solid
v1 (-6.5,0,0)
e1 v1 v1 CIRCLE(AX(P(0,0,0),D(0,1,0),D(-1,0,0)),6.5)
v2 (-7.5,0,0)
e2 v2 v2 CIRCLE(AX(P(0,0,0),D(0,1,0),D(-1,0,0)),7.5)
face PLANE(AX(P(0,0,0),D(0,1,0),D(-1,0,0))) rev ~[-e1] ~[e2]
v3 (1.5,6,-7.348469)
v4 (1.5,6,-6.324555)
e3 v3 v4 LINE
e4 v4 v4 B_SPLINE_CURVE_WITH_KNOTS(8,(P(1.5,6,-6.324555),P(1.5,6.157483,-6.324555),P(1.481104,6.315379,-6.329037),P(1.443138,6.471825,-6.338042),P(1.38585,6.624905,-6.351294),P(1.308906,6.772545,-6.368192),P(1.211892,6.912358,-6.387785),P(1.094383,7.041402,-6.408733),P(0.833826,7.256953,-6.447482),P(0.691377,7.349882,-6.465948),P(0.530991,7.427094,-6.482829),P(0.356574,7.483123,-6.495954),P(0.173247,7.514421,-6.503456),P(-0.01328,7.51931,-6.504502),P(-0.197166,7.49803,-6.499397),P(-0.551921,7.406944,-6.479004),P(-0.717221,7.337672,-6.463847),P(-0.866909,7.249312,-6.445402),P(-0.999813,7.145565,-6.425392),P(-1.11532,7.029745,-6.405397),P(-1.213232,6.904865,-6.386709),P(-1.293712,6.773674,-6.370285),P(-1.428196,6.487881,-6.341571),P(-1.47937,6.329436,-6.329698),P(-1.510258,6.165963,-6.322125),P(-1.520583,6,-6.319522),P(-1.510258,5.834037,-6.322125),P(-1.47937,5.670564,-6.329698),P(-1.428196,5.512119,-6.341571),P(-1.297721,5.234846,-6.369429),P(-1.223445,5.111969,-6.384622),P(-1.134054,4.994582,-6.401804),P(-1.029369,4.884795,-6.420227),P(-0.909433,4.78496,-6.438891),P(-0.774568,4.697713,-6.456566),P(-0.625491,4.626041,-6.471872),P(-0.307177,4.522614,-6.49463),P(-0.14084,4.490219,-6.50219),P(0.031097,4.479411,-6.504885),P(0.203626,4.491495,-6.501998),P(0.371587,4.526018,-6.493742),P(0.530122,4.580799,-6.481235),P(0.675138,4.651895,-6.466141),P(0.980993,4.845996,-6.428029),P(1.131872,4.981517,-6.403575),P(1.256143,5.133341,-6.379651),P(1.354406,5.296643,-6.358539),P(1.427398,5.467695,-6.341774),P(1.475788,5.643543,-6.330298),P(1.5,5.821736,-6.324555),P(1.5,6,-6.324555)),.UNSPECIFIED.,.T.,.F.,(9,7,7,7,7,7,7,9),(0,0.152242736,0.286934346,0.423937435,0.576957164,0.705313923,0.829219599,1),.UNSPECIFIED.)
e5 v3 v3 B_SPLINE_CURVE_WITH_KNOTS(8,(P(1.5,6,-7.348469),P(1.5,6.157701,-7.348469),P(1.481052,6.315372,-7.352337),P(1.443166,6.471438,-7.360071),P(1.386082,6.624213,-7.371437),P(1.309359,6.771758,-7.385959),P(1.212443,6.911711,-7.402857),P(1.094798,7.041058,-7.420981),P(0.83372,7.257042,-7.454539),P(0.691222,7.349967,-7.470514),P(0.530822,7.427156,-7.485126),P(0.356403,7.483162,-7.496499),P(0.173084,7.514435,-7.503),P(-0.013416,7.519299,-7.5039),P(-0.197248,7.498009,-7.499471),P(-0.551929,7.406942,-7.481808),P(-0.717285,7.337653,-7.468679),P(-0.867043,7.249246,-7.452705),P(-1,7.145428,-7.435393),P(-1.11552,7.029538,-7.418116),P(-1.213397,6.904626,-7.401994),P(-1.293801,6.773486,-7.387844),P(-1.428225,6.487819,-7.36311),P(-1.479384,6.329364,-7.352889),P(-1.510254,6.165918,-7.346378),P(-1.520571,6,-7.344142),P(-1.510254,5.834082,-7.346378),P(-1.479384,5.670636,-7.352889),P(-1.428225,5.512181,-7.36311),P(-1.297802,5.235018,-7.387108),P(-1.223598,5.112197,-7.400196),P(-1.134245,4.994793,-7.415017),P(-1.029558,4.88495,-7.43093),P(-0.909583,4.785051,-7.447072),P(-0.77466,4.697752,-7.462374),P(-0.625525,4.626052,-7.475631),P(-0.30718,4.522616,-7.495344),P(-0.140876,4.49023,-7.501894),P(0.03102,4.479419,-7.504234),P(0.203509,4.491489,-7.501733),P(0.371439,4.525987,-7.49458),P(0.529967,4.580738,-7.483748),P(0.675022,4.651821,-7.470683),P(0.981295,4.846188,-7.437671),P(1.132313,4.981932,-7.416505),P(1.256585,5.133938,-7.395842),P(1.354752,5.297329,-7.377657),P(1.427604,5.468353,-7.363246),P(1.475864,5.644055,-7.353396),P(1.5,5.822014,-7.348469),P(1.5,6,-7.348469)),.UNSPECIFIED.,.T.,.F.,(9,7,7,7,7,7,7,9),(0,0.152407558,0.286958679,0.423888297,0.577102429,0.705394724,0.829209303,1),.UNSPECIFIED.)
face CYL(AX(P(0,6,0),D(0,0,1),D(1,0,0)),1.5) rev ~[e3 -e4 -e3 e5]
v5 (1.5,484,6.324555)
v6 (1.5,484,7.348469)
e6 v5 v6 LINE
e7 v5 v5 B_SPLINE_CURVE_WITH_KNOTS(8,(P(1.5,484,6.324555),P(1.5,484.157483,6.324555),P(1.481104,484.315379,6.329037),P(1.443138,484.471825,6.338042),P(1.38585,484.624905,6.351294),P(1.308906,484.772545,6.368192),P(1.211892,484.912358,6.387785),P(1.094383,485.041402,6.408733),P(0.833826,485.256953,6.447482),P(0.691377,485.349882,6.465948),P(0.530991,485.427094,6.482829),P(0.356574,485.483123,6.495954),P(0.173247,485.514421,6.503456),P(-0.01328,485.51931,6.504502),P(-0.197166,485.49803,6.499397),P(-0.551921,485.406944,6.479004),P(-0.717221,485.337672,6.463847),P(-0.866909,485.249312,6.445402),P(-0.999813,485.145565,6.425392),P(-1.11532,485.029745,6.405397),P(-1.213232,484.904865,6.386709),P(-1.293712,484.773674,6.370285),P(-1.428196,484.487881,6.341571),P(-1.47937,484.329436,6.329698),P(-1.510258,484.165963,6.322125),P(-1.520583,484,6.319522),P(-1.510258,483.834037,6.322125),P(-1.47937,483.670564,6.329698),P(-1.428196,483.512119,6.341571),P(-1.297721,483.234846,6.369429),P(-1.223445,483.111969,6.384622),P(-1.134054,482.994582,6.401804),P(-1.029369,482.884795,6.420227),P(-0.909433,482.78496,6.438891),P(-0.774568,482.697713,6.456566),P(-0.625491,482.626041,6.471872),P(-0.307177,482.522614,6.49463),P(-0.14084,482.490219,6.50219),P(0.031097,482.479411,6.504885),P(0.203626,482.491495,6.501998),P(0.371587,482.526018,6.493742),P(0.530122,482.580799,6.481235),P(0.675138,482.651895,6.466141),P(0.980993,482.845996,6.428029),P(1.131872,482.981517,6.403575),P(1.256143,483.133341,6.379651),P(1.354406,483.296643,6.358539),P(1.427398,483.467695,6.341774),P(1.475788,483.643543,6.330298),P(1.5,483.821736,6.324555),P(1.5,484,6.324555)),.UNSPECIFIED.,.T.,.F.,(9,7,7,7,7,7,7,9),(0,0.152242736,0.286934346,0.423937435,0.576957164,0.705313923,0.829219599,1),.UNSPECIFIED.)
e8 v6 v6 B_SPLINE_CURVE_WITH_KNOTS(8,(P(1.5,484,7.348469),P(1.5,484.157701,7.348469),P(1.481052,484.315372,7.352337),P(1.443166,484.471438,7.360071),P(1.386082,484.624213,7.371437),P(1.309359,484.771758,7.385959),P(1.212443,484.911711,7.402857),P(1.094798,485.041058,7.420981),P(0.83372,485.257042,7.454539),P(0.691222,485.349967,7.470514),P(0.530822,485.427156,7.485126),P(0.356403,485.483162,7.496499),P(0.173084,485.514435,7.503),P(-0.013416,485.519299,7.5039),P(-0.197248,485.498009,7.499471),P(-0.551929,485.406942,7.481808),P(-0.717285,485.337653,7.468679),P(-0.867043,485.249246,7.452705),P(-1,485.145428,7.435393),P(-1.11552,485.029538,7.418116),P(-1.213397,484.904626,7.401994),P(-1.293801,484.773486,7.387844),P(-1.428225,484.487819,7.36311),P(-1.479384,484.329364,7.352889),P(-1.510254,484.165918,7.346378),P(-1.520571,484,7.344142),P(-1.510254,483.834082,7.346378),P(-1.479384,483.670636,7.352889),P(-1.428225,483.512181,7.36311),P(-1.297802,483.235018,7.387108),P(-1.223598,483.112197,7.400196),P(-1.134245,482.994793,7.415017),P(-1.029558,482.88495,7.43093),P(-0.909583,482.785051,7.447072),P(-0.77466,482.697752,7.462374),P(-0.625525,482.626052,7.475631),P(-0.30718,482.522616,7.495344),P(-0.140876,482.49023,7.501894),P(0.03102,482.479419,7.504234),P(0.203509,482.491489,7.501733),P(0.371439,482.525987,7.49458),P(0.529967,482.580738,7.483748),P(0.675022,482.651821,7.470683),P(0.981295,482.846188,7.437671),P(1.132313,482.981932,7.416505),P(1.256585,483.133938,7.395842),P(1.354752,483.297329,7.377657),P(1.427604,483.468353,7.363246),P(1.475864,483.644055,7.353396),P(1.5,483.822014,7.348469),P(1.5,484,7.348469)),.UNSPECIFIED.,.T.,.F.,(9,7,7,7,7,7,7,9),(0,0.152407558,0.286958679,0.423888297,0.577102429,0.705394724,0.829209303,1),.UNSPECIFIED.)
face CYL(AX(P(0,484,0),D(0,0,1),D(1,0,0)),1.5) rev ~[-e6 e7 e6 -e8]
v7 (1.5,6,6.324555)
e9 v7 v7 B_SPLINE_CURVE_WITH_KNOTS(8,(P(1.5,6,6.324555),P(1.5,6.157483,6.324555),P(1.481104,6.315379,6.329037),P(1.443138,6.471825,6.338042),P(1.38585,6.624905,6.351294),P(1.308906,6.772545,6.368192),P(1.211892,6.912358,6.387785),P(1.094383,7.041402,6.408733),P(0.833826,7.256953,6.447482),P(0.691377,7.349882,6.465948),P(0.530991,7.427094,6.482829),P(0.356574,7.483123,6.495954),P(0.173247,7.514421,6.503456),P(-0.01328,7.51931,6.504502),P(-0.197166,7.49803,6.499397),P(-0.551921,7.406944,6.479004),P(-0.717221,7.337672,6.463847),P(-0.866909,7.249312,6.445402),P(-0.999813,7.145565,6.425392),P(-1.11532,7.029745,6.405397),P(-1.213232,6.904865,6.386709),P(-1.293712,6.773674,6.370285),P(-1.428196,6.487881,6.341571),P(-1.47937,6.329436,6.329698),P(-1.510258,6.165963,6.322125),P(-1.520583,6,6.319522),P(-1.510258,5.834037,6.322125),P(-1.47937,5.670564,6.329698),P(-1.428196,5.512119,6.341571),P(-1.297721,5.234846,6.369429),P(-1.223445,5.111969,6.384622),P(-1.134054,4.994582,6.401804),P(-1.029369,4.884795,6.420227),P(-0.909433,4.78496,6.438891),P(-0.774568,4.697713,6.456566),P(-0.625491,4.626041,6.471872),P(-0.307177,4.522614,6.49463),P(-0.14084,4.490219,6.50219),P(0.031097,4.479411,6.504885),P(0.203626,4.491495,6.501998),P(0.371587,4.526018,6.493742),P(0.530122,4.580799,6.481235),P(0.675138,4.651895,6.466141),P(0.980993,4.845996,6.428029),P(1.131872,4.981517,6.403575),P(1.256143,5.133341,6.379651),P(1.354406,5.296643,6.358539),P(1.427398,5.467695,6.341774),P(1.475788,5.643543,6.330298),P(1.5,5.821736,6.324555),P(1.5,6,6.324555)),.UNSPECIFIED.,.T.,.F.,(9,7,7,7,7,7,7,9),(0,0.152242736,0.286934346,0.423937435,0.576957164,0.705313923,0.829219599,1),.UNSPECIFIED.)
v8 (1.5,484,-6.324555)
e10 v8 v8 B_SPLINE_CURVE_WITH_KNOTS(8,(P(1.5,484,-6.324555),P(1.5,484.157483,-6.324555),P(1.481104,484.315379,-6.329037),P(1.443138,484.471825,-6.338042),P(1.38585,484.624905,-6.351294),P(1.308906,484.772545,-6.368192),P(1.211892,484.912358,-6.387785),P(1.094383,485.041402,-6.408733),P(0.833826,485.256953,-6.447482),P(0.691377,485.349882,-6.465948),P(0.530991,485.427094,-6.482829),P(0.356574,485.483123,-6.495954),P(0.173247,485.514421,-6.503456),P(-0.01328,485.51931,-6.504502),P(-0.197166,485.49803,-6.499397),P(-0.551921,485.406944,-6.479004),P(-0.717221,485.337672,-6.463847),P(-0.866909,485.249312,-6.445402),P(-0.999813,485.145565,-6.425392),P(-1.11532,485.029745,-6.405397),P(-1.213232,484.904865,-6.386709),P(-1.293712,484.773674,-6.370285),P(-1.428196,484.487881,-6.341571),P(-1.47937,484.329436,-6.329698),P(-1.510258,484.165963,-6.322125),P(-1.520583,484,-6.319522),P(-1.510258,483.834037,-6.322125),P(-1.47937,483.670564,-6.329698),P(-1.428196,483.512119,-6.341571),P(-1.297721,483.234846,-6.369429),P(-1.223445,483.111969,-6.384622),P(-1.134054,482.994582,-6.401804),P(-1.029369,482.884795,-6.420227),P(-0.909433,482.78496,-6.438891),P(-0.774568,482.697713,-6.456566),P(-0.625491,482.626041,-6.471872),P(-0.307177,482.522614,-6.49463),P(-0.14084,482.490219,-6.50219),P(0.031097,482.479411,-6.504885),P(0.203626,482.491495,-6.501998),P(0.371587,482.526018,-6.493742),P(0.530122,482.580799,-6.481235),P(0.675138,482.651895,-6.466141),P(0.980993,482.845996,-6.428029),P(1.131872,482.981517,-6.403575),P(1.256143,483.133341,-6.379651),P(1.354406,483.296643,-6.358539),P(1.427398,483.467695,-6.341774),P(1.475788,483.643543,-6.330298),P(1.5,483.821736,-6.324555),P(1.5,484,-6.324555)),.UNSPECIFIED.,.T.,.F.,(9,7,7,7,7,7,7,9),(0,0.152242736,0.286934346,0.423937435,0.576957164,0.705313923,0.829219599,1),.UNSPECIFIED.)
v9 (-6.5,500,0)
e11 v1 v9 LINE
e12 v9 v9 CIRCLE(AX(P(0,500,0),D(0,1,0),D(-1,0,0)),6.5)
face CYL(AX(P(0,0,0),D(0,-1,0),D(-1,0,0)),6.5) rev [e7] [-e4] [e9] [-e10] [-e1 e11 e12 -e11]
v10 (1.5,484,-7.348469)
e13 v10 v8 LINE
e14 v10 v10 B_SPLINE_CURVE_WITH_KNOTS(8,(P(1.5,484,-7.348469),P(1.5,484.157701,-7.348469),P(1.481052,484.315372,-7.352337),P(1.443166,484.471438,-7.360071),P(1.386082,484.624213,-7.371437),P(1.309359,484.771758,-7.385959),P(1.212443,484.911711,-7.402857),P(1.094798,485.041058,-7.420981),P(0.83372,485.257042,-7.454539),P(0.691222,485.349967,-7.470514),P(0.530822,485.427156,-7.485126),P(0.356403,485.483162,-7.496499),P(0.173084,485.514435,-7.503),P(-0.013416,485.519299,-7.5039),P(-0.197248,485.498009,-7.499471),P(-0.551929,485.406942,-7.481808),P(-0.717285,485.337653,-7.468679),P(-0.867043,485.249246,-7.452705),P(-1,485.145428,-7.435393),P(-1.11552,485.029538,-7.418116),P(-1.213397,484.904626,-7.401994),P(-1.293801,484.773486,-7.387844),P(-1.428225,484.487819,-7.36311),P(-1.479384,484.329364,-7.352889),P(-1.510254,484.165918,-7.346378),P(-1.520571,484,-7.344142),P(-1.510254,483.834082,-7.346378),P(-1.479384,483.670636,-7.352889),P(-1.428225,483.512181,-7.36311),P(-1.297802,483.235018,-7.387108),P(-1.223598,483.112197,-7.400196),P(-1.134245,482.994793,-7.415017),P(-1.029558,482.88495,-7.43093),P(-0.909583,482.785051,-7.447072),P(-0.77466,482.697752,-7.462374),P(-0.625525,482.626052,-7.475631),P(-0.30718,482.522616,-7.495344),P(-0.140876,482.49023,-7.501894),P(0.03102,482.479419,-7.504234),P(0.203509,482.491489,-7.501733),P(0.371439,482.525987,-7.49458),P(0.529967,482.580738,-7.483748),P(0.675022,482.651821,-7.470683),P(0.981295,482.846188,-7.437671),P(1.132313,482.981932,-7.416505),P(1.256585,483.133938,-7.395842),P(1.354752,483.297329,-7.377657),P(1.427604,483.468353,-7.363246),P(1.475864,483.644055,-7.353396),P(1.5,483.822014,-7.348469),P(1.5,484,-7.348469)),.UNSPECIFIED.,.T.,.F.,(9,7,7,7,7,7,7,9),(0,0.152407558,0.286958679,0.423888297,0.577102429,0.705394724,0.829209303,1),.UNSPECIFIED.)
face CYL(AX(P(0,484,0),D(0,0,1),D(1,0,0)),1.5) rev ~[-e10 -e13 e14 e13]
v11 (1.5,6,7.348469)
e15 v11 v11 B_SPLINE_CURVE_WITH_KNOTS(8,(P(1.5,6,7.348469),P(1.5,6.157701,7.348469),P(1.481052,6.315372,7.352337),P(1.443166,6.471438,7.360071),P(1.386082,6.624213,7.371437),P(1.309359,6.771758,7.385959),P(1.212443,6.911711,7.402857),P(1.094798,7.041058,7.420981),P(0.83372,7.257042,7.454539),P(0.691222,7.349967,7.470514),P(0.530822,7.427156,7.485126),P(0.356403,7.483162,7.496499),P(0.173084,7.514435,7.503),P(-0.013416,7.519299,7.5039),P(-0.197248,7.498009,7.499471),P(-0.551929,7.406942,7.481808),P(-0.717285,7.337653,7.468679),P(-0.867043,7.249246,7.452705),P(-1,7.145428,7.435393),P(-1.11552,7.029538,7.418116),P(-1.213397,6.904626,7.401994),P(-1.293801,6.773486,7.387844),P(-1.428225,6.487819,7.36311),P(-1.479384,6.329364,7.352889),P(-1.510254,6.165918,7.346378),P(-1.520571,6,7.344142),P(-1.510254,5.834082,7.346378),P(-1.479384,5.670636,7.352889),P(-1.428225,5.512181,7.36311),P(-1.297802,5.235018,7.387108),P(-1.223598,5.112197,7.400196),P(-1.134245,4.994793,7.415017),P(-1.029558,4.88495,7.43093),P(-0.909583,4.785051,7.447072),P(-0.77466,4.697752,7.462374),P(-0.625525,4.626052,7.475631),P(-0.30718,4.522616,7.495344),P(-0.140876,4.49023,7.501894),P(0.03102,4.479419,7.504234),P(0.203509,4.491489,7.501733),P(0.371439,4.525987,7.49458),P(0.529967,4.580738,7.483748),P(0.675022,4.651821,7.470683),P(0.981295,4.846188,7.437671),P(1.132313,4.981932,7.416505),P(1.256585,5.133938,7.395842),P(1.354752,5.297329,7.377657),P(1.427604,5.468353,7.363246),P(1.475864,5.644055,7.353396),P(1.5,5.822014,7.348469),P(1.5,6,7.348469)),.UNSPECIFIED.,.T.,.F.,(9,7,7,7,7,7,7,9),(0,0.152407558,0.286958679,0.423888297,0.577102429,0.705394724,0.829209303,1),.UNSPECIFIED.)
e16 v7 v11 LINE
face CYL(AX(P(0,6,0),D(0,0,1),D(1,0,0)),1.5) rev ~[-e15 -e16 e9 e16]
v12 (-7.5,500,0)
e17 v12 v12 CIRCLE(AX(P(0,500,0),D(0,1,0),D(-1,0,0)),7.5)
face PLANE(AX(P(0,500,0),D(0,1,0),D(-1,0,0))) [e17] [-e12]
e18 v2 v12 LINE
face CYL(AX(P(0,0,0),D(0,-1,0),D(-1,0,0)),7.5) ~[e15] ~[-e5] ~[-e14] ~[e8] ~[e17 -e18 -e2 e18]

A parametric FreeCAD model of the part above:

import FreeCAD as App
import Part
import Sketcher
Q = App.Units.Quantity

doc = App.newDocument("Part")
body = doc.addObject("PartDesign::Body", "Body")

sketch1 = body.newObject("Sketcher::SketchObject", "Sketch")
sketch1.AttachmentSupport = (doc.getObject("XZ_Plane"), [""])
sketch1.MapMode = "FlatFace"
sketch1.addGeometry([
    Part.Circle(App.Vector(0, 0, 0), App.Vector(0, 0, 1), 7.5),
    Part.Circle(App.Vector(0, 0, 0), App.Vector(0, 0, 1), 6.5),
], False)
sketch1.addConstraint([
    Sketcher.Constraint("Coincident", 0, 3, -1, 1),
    Sketcher.Constraint("Coincident", 1, 3, -1, 1),
    Sketcher.Constraint("Diameter", 0, Q("15 mm")),
    Sketcher.Constraint("Diameter", 1, Q("13 mm")),
])
pad1 = body.newObject("PartDesign::Pad", "Pad")
pad1.Profile = sketch1
pad1.Length = 500
pad1.Reversed = True

sketch2 = body.newObject("Sketcher::SketchObject", "Sketch001")
sketch2.AttachmentSupport = (doc.getObject("XY_Plane"), [""])
sketch2.MapMode = "FlatFace"
sketch2.addGeometry([
    Part.Circle(App.Vector(0, 6, 0), App.Vector(0, 0, 1), 1.5),
    Part.Circle(App.Vector(0, 484, 0), App.Vector(0, 0, 1), 1.5),
], False)
sketch2.addConstraint([
    Sketcher.Constraint("Equal", 0, 1),
    Sketcher.Constraint("PointOnObject", 0, 3, -2),
    Sketcher.Constraint("PointOnObject", 1, 3, -2),
    Sketcher.Constraint("Diameter", 0, Q("3 mm")),
    Sketcher.Constraint("DistanceY", -1, 1, 0, 3, Q("6 mm")),
    Sketcher.Constraint("DistanceY", -1, 1, 1, 3, Q("484 mm")),
])
pocket1 = body.newObject("PartDesign::Pocket", "Pocket")
pocket1.Profile = sketch2
pocket1.Type = "ThroughAll"
pocket1.Midplane = True

doc.recompute()
